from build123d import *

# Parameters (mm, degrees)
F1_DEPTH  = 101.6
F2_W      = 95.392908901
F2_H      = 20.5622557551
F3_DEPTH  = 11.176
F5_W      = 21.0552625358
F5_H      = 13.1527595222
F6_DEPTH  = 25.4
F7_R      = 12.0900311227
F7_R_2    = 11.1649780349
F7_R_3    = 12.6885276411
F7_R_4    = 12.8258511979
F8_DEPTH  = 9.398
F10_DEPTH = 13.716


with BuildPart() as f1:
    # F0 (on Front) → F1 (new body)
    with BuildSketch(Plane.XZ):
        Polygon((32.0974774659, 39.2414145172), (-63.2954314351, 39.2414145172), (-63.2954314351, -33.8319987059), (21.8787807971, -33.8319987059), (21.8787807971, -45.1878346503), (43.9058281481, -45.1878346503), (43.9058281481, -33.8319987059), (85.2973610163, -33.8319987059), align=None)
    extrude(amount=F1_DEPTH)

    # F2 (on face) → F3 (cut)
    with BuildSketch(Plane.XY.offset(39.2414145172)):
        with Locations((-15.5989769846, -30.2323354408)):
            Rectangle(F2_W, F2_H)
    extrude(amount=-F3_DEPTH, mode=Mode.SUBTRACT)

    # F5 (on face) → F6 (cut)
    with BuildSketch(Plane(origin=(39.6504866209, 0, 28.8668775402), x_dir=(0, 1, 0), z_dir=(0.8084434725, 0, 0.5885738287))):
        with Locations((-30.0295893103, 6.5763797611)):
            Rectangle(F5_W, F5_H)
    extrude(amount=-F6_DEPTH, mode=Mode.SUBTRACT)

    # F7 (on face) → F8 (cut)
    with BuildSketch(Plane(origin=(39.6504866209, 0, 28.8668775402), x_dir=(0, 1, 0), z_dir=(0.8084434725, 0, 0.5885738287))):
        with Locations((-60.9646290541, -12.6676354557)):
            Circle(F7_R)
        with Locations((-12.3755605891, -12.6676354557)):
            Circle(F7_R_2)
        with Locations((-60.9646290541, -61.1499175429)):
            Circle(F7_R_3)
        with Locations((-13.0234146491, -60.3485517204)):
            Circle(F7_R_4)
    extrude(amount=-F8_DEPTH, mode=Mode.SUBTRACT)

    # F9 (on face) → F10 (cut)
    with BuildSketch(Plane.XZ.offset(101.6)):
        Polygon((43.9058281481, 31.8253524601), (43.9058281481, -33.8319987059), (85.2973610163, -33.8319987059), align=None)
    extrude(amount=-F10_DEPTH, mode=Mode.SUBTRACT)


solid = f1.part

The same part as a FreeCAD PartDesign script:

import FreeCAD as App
import Part
import Sketcher
Q = App.Units.Quantity


def add_polygon(sketch, points):
    """Adds a closed chain of lines whose ends are joined by coincident constraints."""
    first, n = sketch.GeometryCount, len(points)
    for a, b in zip(points, points[1:] + points[:1]):
        sketch.addGeometry(Part.LineSegment(App.Vector(*a, 0), App.Vector(*b, 0)), False)
    for i in range(n):
        sketch.addConstraint(Sketcher.Constraint("Coincident", first + i, 2, first + (i + 1) % n, 1))

doc = App.newDocument("Part")
body = doc.addObject("PartDesign::Body", "Body")

sketch1 = body.newObject("Sketcher::SketchObject", "Sketch")
sketch1.AttachmentSupport = (doc.getObject("XZ_Plane"), [""])
sketch1.MapMode = "FlatFace"
add_polygon(sketch1, [(32, 39), (-63, 39), (-63, -34), (22, -34), (22, -45), (44, -45), (44, -34), (85, -34)])
sketch1.addConstraint([
    Sketcher.Constraint("Horizontal", 0),
    Sketcher.Constraint("Vertical", 1),
    Sketcher.Constraint("Horizontal", 2),
    Sketcher.Constraint("Vertical", 3),
    Sketcher.Constraint("Horizontal", 4),
    Sketcher.Constraint("Vertical", 5),
    Sketcher.Constraint("Horizontal", 6),
    Sketcher.Constraint("Horizontal", 2, 2, 5, 2),
    Sketcher.Constraint("DistanceX", 0, 2, 0, 1, Q("95.392909 mm")),
    Sketcher.Constraint("DistanceY", 1, 2, -1, 1, Q("33.831999 mm")),
    Sketcher.Constraint("DistanceX", 2, 1, 2, 2, Q("85.174212 mm")),
    Sketcher.Constraint("DistanceX", 4, 1, 4, 2, Q("22.027047 mm")),
    Sketcher.Constraint("DistanceX", 6, 1, 6, 2, Q("41.391533 mm")),
    Sketcher.Constraint("DistanceY", 1, 2, 1, 1, Q("73.073413 mm")),
    Sketcher.Constraint("DistanceY", 3, 2, 3, 1, Q("11.355836 mm")),
    Sketcher.Constraint("DistanceX", 0, 2, -1, 1, Q("63.295431 mm")),
])
pad1 = body.newObject("PartDesign::Pad", "Pad")
pad1.Profile = sketch1
pad1.Length = Q("4 in")

sketch2 = body.newObject("Sketcher::SketchObject", "Sketch001")
sketch2.AttachmentSupport = (doc.getObject("XY_Plane"), [""])
sketch2.MapMode = "FlatFace"
sketch2.AttachmentOffset = App.Placement(App.Vector(0, 0, 39.241415), App.Rotation())
add_polygon(sketch2, [(-63, -20), (-63, -41), (32, -41), (32, -20)])
sketch2.addConstraint([
    Sketcher.Constraint("Vertical", 0),
    Sketcher.Constraint("Horizontal", 1),
    Sketcher.Constraint("Vertical", 2),
    Sketcher.Constraint("Horizontal", 3),
    Sketcher.Constraint("DistanceX", 1, 1, 1, 2, Q("95.392909 mm")),
    Sketcher.Constraint("DistanceY", 0, 2, 0, 1, Q("20.562256 mm")),
    Sketcher.Constraint("DistanceX", 0, 2, -1, 1, Q("63.295431 mm")),
    Sketcher.Constraint("DistanceY", 0, 2, -1, 1, Q("40.513463 mm")),
])
pocket1 = body.newObject("PartDesign::Pocket", "Pocket")
pocket1.Profile = sketch2
pocket1.Length = Q("0.44 in")

sketch3 = body.newObject("Sketcher::SketchObject", "Sketch002")
sketch3.Placement = App.Placement(App.Vector(39.650487, 0, 28.866878), App.Rotation(App.Vector(0, 1, 0), App.Vector(-0.588573829, 0, 0.808443472), App.Vector(0.808443472, 0, 0.588573829), "ZXY"))
add_polygon(sketch3, [(-41, 13), (-41, 0), (-20, 0), (-20, 13)])
sketch3.addConstraint([
    Sketcher.Constraint("Vertical", 0),
    Sketcher.Constraint("Horizontal", 1),
    Sketcher.Constraint("Vertical", 2),
    Sketcher.Constraint("Horizontal", 3),
    Sketcher.Constraint("PointOnObject", 0, 2, -1),
    Sketcher.Constraint("DistanceY", 0, 2, 0, 1, Q("13.15276 mm")),
    Sketcher.Constraint("DistanceX", 1, 1, 1, 2, Q("21.055263 mm")),
    Sketcher.Constraint("DistanceX", 0, 2, -1, 1, Q("40.557221 mm")),
])
pocket2 = body.newObject("PartDesign::Pocket", "Pocket001")
pocket2.Profile = sketch3
pocket2.Length = Q("1 in")

sketch4 = body.newObject("Sketcher::SketchObject", "Sketch003")
sketch4.Placement = App.Placement(App.Vector(39.650487, 0, 28.866878), App.Rotation(App.Vector(0, 1, 0), App.Vector(-0.588573829, 0, 0.808443472), App.Vector(0.808443472, 0, 0.588573829), "ZXY"))
sketch4.addGeometry([
    Part.Circle(App.Vector(-61, -13, 0), App.Vector(0, 0, 1), 12),
    Part.Circle(App.Vector(-12, -13, 0), App.Vector(0, 0, 1), 11),
    Part.Circle(App.Vector(-61, -61, 0), App.Vector(0, 0, 1), 13),
    Part.Circle(App.Vector(-13, -60, 0), App.Vector(0, 0, 1), 13),
], False)
sketch4.addConstraint([
    Sketcher.Constraint("Horizontal", 0, 3, 1, 3),
    Sketcher.Constraint("Vertical", 0, 3, 2, 3),
    Sketcher.Constraint("Diameter", 0, Q("24.180062 mm")),
    Sketcher.Constraint("Diameter", 1, Q("22.329956 mm")),
    Sketcher.Constraint("Diameter", 2, Q("25.377055 mm")),
    Sketcher.Constraint("Diameter", 3, Q("25.651702 mm")),
    Sketcher.Constraint("DistanceX", 0, 3, -1, 1, Q("60.964629 mm")),
    Sketcher.Constraint("DistanceX", 1, 3, -1, 1, Q("12.375561 mm")),
    Sketcher.Constraint("DistanceY", 3, 3, -1, 1, Q("60.348552 mm")),
    Sketcher.Constraint("DistanceY", 0, 3, -1, 1, Q("12.667635 mm")),
    Sketcher.Constraint("DistanceY", 2, 3, -1, 1, Q("61.149918 mm")),
    Sketcher.Constraint("DistanceX", 3, 3, -1, 1, Q("13.023415 mm")),
])
pocket3 = body.newObject("PartDesign::Pocket", "Pocket002")
pocket3.Profile = sketch4
pocket3.Length = Q("0.37 in")

sketch5 = body.newObject("Sketcher::SketchObject", "Sketch004")
sketch5.AttachmentSupport = (doc.getObject("XZ_Plane"), [""])
sketch5.MapMode = "FlatFace"
sketch5.AttachmentOffset = App.Placement(App.Vector(0, 0, 4 * 25.4), App.Rotation())
add_polygon(sketch5, [(44, 32), (44, -34), (85, -34)])
sketch5.addConstraint([
    Sketcher.Constraint("Vertical", 0),
    Sketcher.Constraint("Horizontal", 1),
    Sketcher.Constraint("DistanceY", 0, 2, 0, 1, Q("65.657351 mm")),
    Sketcher.Constraint("DistanceY", 0, 2, -1, 1, Q("33.831999 mm")),
    Sketcher.Constraint("DistanceX", 1, 1, 1, 2, Q("41.391533 mm")),
    Sketcher.Constraint("DistanceX", -1, 1, 0, 2, Q("43.905828 mm")),
])
pocket4 = body.newObject("PartDesign::Pocket", "Pocket003")
pocket4.Profile = sketch5
pocket4.Length = Q("0.54 in")

doc.recompute()
